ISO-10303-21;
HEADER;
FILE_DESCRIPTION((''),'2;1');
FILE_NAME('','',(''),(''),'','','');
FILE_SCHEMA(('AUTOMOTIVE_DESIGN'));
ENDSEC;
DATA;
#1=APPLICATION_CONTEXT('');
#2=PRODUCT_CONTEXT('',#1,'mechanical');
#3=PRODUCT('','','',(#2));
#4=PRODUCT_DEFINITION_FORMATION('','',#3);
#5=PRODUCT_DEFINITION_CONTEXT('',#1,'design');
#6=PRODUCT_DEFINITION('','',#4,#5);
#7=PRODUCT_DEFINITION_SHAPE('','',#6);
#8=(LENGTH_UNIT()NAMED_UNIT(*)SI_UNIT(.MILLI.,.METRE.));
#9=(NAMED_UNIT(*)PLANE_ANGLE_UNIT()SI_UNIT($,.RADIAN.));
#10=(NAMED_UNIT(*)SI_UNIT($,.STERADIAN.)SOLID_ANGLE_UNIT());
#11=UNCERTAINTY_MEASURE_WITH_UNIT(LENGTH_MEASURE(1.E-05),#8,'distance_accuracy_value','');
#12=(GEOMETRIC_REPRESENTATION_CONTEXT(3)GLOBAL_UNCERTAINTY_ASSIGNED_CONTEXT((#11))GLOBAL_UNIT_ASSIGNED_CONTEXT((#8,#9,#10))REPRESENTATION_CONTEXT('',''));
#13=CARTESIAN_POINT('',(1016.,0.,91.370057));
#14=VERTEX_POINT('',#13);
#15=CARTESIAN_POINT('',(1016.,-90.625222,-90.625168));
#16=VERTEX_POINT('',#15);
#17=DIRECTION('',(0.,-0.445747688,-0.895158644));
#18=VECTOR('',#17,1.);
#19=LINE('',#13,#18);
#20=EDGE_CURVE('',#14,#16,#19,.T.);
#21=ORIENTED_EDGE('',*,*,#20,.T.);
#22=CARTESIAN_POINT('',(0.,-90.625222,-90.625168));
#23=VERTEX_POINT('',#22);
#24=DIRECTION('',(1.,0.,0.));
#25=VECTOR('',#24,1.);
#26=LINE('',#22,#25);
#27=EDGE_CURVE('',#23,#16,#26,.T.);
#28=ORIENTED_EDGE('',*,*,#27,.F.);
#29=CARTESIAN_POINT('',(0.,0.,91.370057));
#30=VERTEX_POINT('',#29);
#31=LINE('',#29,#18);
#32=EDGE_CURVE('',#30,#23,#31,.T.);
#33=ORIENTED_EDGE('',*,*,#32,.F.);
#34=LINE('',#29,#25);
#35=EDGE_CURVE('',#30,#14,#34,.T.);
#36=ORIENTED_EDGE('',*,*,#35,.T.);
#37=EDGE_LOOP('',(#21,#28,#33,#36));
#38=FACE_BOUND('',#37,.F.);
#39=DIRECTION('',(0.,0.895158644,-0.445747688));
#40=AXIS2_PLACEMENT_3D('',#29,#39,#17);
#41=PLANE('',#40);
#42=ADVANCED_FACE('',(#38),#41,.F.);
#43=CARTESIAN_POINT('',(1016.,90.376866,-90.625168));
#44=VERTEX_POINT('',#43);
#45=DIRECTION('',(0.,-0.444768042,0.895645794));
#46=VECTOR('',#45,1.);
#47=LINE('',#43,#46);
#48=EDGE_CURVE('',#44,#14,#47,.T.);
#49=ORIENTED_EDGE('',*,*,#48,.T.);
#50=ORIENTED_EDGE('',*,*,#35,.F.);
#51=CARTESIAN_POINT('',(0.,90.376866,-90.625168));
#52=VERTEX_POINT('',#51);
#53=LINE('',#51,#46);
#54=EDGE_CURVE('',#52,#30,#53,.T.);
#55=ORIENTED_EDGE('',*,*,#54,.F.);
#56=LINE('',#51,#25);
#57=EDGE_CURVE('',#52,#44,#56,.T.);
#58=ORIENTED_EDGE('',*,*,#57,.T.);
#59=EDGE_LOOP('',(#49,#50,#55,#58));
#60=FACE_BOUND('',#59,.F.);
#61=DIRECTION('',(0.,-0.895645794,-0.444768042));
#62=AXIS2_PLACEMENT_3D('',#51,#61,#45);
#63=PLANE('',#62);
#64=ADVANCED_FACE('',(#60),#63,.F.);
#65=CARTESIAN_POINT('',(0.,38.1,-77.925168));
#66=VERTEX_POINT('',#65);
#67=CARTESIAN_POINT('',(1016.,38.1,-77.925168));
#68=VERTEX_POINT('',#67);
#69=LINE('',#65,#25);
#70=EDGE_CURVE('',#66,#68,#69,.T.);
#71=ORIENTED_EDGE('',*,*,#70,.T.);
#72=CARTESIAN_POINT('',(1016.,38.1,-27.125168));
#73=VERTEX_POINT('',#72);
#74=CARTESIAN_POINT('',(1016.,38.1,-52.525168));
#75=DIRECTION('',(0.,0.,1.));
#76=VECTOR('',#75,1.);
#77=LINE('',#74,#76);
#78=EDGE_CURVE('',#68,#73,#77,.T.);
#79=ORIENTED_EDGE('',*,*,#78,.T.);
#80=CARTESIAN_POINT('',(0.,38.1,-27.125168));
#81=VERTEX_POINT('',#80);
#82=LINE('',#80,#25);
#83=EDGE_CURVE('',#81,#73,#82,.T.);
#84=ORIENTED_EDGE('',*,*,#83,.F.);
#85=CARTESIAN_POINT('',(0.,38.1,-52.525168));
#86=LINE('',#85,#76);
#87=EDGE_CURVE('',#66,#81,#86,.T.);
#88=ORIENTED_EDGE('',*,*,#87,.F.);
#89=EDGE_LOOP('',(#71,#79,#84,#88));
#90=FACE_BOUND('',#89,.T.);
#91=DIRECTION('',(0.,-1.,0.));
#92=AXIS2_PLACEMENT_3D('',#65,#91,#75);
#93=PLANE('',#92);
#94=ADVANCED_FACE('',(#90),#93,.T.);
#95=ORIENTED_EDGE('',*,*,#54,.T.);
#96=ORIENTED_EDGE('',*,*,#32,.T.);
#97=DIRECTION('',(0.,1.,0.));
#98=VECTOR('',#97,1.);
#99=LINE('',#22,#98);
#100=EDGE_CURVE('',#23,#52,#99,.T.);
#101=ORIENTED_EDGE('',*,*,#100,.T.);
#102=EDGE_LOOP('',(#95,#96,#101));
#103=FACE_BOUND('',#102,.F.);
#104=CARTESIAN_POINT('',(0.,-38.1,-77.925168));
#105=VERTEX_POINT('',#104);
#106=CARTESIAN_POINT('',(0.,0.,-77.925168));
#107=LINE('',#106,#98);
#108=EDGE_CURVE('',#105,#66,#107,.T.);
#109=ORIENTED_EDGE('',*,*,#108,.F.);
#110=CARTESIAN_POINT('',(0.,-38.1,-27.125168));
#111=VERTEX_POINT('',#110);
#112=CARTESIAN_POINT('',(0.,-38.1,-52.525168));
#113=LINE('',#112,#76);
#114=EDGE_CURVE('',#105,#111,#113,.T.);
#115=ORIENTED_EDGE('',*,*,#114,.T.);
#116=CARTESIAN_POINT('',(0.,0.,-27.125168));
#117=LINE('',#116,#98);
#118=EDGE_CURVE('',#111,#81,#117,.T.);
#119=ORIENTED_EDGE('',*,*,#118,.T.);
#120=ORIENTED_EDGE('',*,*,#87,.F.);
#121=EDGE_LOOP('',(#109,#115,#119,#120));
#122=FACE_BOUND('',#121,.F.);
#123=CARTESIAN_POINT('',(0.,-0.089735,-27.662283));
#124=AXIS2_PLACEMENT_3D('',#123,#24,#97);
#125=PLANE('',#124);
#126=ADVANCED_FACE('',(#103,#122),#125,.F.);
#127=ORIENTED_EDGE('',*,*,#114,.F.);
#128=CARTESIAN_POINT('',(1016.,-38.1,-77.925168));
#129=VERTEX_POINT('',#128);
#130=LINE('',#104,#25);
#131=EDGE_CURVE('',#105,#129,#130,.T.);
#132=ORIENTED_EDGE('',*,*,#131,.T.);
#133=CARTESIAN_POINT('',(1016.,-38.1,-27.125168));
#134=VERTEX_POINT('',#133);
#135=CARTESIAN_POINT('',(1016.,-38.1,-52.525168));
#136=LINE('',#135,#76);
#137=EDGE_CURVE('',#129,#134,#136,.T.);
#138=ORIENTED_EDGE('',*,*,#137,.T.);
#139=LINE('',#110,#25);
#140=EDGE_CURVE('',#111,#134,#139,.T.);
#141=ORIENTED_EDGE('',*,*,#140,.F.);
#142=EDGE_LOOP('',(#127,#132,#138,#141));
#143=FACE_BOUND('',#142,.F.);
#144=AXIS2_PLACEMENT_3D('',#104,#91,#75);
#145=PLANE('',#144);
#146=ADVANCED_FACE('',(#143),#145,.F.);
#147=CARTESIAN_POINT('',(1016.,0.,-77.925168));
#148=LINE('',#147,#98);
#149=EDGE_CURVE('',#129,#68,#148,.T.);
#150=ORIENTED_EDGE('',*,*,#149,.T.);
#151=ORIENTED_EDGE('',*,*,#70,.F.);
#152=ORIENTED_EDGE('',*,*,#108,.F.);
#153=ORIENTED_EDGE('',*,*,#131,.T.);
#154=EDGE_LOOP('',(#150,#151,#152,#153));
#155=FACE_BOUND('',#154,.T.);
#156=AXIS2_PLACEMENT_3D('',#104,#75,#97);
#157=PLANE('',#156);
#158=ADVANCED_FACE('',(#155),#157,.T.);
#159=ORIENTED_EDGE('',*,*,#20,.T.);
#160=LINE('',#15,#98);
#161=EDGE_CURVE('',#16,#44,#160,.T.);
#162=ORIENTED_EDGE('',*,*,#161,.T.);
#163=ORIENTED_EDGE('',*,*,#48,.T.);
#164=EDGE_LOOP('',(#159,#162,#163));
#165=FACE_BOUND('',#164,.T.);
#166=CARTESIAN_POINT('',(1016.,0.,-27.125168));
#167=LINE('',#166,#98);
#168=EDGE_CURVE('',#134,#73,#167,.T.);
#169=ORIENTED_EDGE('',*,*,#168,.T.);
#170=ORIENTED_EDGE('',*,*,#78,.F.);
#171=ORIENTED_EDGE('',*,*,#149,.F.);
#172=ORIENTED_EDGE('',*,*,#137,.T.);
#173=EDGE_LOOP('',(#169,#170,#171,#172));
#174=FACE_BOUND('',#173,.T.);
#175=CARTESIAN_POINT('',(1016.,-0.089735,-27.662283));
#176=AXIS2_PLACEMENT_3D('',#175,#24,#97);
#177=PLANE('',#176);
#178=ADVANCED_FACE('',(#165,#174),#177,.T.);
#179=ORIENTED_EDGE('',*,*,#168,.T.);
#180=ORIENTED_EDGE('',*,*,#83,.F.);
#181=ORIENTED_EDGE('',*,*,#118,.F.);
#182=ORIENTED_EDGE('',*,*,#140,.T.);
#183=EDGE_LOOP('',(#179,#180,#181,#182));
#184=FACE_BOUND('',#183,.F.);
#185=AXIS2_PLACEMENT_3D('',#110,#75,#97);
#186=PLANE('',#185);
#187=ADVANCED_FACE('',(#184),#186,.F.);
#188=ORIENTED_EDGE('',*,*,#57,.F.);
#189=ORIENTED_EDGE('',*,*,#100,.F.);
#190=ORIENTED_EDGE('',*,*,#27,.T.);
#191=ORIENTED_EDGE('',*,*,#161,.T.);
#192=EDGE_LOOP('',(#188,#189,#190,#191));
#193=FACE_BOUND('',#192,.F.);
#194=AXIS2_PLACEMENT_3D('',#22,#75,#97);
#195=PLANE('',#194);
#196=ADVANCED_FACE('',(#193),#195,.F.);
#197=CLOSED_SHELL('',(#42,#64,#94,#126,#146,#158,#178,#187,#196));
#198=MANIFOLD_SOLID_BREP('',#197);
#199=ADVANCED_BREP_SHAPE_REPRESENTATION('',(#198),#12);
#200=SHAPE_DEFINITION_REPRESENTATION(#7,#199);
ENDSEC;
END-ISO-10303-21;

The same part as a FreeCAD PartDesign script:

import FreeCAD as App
import Part
import Sketcher
Q = App.Units.Quantity

doc = App.newDocument("Part")
body = doc.addObject("PartDesign::Body", "Body")

# Sketch on YZ plane
sketch1 = body.newObject("Sketcher::SketchObject", "Sketch")
sketch1.AttachmentSupport = (doc.getObject("YZ_Plane"), [""])
sketch1.MapMode = "FlatFace"
sketch1.addGeometry([
    Part.LineSegment(App.Vector(0, 91, 0), App.Vector(-91, -91, 0)),  # 0
    Part.LineSegment(App.Vector(-91, -91, 0), App.Vector(90, -91, 0)),  # 1
    Part.LineSegment(App.Vector(90, -91, 0), App.Vector(0, 91, 0)),  # 2
    Part.LineSegment(App.Vector(38, -78, 0), App.Vector(-38, -78, 0)),  # 3
    Part.LineSegment(App.Vector(-38, -78, 0), App.Vector(-38, -27, 0)),  # 4
    Part.LineSegment(App.Vector(-38, -27, 0), App.Vector(38, -27, 0)),  # 5
    Part.LineSegment(App.Vector(38, -27, 0), App.Vector(38, -78, 0)),  # 6
], False)
sketch1.addConstraint([
    Sketcher.Constraint("Coincident", 0, 2, 1, 1),
    Sketcher.Constraint("Coincident", 1, 2, 2, 1),
    Sketcher.Constraint("Coincident", 2, 2, 0, 1),
    Sketcher.Constraint("Coincident", 3, 2, 4, 1),
    Sketcher.Constraint("Coincident", 4, 2, 5, 1),
    Sketcher.Constraint("Coincident", 5, 2, 6, 1),
    Sketcher.Constraint("Coincident", 6, 2, 3, 1),
    Sketcher.Constraint("Horizontal", 1),
    Sketcher.Constraint("Horizontal", 3),
    Sketcher.Constraint("Vertical", 4),
    Sketcher.Constraint("Horizontal", 5),
    Sketcher.Constraint("Vertical", 6),
    Sketcher.Constraint("PointOnObject", 2, 2, -2),
    Sketcher.Constraint("DistanceX", 3, 2, 3, 1, Q("3 in")),
    Sketcher.Constraint("DistanceY", 4, 1, 4, 2, Q("2 in")),
    Sketcher.Constraint("Distance", 2, Q("8 in")),
    Sketcher.Constraint("DistanceX", 3, 2, -1, 1, Q("1.5 in")),
    Sketcher.Constraint("DistanceY", 0, 2, 3, 2, Q("0.5 in")),
    Sketcher.Constraint("DistanceX", 1, 1, 1, 2, 181.002088),
    Sketcher.Constraint("DistanceX", 0, 2, -1, 1, 90.625222),
    Sketcher.Constraint("DistanceY", 0, 2, -1, 1, 90.625168),
])
pad1 = body.newObject("PartDesign::Pad", "Pad")
pad1.Profile = sketch1
pad1.Length = Q("40 in")

doc.recompute()
